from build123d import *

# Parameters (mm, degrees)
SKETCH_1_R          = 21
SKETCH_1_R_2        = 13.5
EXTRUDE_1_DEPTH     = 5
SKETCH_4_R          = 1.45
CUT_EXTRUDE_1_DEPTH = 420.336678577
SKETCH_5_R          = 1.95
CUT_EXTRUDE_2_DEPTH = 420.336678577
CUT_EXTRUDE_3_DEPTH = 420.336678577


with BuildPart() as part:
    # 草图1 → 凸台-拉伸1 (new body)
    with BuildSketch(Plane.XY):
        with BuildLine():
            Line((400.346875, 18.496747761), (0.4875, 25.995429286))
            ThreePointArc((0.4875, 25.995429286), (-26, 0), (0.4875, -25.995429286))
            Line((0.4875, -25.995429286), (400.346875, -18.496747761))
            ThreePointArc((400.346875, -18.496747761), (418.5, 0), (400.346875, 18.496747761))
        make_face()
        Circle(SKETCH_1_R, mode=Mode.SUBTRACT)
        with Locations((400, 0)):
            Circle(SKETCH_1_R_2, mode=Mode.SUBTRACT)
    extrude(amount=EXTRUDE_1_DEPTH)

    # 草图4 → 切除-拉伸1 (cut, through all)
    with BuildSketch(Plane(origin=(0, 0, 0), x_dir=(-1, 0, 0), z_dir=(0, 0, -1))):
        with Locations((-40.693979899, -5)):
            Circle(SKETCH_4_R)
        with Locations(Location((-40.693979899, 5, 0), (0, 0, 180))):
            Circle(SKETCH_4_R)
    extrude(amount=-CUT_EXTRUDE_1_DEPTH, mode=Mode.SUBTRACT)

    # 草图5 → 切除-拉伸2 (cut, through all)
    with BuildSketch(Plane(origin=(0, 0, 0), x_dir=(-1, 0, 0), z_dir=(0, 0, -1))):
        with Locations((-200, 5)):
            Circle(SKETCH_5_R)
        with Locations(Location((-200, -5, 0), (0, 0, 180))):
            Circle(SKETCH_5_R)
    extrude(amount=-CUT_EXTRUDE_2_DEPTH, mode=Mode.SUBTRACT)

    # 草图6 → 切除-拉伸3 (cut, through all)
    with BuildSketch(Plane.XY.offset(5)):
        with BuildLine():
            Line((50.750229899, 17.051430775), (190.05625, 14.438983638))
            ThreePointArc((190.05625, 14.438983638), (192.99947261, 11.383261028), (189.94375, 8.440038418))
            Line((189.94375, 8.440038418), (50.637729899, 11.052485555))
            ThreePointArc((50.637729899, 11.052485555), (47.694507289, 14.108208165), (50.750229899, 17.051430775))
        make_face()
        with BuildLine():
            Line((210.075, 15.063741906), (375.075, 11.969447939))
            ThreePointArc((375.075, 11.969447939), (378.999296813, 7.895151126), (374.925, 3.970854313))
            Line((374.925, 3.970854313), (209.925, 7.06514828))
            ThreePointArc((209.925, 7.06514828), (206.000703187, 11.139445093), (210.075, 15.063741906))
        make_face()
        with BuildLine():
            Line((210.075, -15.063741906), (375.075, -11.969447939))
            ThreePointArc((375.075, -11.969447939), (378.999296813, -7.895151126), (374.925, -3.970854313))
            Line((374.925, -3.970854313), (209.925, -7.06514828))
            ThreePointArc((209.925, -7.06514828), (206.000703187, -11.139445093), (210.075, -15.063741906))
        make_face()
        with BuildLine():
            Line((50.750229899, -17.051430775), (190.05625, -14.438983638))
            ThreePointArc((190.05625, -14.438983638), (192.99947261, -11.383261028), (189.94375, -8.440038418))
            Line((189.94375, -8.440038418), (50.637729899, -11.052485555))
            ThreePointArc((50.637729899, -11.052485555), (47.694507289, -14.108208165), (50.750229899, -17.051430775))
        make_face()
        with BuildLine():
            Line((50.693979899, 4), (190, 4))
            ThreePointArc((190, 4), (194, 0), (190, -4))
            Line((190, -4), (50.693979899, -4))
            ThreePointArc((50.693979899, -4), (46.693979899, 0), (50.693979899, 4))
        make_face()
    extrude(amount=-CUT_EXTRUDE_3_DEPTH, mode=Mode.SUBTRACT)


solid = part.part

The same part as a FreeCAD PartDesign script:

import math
import FreeCAD as App
import Part
import Sketcher

doc = App.newDocument("Part")
body = doc.addObject("PartDesign::Body", "Body")

# Sketch on XY plane
sketch1 = body.newObject("Sketcher::SketchObject", "Sketch")
sketch1.AttachmentSupport = (doc.getObject("XY_Plane"), [""])
sketch1.MapMode = "FlatFace"
sketch1.addGeometry(Part.LineSegment(App.Vector(400, 18, 0), App.Vector(0, 26, 0)), False)
sketch1.addGeometry(Part.ArcOfCircle(Part.Circle(App.Vector(0, 0, 0), App.Vector(0, 0, 1), 26), math.radians(89), math.radians(271)), False)
sketch1.addGeometry(Part.LineSegment(App.Vector(0, -26, 0), App.Vector(400, -18, 0)), False)
sketch1.addGeometry(Part.ArcOfCircle(Part.Circle(App.Vector(400, 0, 0), App.Vector(0, 0, 1), 18), math.radians(-89), math.radians(89)), False)
sketch1.addGeometry(Part.Circle(App.Vector(0, 0, 0), App.Vector(0, 0, 1), 21), False)
sketch1.addGeometry(Part.Circle(App.Vector(400, 0, 0), App.Vector(0, 0, 1), 14), False)
sketch1.addConstraint(Sketcher.Constraint("Tangent", 0, 2, 1, 1))
sketch1.addConstraint(Sketcher.Constraint("Tangent", 1, 2, 2, 1))
sketch1.addConstraint(Sketcher.Constraint("Tangent", 2, 2, 3, 1))
sketch1.addConstraint(Sketcher.Constraint("Tangent", 3, 2, 0, 1))
sketch1.addConstraint(Sketcher.Constraint("Coincident", 1, 3, -1, 1))
sketch1.addConstraint(Sketcher.Constraint("Coincident", 4, 3, -1, 1))
sketch1.addConstraint(Sketcher.Constraint("Coincident", 5, 3, 3, 3))
sketch1.addConstraint(Sketcher.Constraint("PointOnObject", 3, 3, -1))
sketch1.addConstraint(Sketcher.Constraint("Diameter", 4, 42.0))
sketch1.addConstraint(Sketcher.Constraint("Diameter", 5, 27.0))
sketch1.addConstraint(Sketcher.Constraint("Radius", 1, 26.0))
sketch1.addConstraint(Sketcher.Constraint("Radius", 3, 18.5))
sketch1.addConstraint(Sketcher.Constraint("DistanceX", -1, 1, 3, 3, 400.0))
pad1 = body.newObject("PartDesign::Pad", "Pad")
pad1.Profile = sketch1
pad1.Length = 5

# Sketch on XY plane
sketch2 = body.newObject("Sketcher::SketchObject", "Sketch001")
sketch2.AttachmentSupport = (doc.getObject("XY_Plane"), [""])
sketch2.MapMode = "FlatFace"
sketch2.addGeometry(Part.Circle(App.Vector(40.7, -5, 0), App.Vector(0, 0, 1), 1.4), False)
sketch2.addGeometry(Part.Circle(App.Vector(40.7, 5, 0), App.Vector(0, 0, 1), 1.4), False)
sketch2.addConstraint(Sketcher.Constraint("Equal", 0, 1))
sketch2.addConstraint(Sketcher.Constraint("Symmetric", 0, 3, 1, 3, -1))
sketch2.addConstraint(Sketcher.Constraint("Diameter", 0, 2.9))
sketch2.addConstraint(Sketcher.Constraint("DistanceY", 0, 3, -1, 1, 5.0))
sketch2.addConstraint(Sketcher.Constraint("DistanceX", -1, 1, 0, 3, 40.69398))
pocket1 = body.newObject("PartDesign::Pocket", "Pocket")
pocket1.Profile = sketch2
pocket1.Type = "ThroughAll"
pocket1.Reversed = True

# Sketch on XY plane
sketch3 = body.newObject("Sketcher::SketchObject", "Sketch002")
sketch3.AttachmentSupport = (doc.getObject("XY_Plane"), [""])
sketch3.MapMode = "FlatFace"
sketch3.addGeometry(Part.Circle(App.Vector(200, 5, 0), App.Vector(0, 0, 1), 1.9), False)
sketch3.addGeometry(Part.Circle(App.Vector(200, -5, 0), App.Vector(0, 0, 1), 1.9), False)
sketch3.addConstraint(Sketcher.Constraint("Equal", 0, 1))
sketch3.addConstraint(Sketcher.Constraint("Symmetric", 0, 3, 1, 3, -1))
sketch3.addConstraint(Sketcher.Constraint("Diameter", 0, 3.9))
sketch3.addConstraint(Sketcher.Constraint("DistanceX", -1, 1, 0, 3, 200.0))
sketch3.addConstraint(Sketcher.Constraint("DistanceY", -1, 1, 0, 3, 5.0))
pocket2 = body.newObject("PartDesign::Pocket", "Pocket001")
pocket2.Profile = sketch3
pocket2.Type = "ThroughAll"
pocket2.Reversed = True

# Sketch on XY plane
sketch4 = body.newObject("Sketcher::SketchObject", "Sketch003")
sketch4.AttachmentSupport = (doc.getObject("XY_Plane"), [""])
sketch4.MapMode = "FlatFace"
sketch4.AttachmentOffset = App.Placement(App.Vector(0, 0, 5), App.Rotation())
sketch4.addGeometry(Part.LineSegment(App.Vector(190.1, 14.4, 0), App.Vector(50.8, 17.1, 0)), False)
sketch4.addGeometry(Part.ArcOfCircle(Part.Circle(App.Vector(50.7, 14.1, 0), App.Vector(0, 0, 1), 3), math.radians(89), math.radians(269)), False)
sketch4.addGeometry(Part.LineSegment(App.Vector(50.6, 11.1, 0), App.Vector(189.9, 8.4, 0)), False)
sketch4.addGeometry(Part.ArcOfCircle(Part.Circle(App.Vector(190, 11.4, 0), App.Vector(0, 0, 1), 3), math.radians(-91), math.radians(89)), False)
sketch4.addGeometry(Part.LineSegment(App.Vector(375.1, 12, 0), App.Vector(210.1, 15.1, 0)), False)
sketch4.addGeometry(Part.ArcOfCircle(Part.Circle(App.Vector(210, 11.1, 0), App.Vector(0, 0, 1), 4), math.radians(89), math.radians(269)), False)
sketch4.addGeometry(Part.LineSegment(App.Vector(209.9, 7.1, 0), App.Vector(374.9, 4, 0)), False)
sketch4.addGeometry(Part.ArcOfCircle(Part.Circle(App.Vector(375, 8, 0), App.Vector(0, 0, 1), 4), math.radians(-91), math.radians(89)), False)
sketch4.addGeometry(Part.LineSegment(App.Vector(210.1, -15.1, 0), App.Vector(375.1, -12, 0)), False)
sketch4.addGeometry(Part.ArcOfCircle(Part.Circle(App.Vector(375, -8, 0), App.Vector(0, 0, 1), 4), math.radians(-89), math.radians(91)), False)
sketch4.addGeometry(Part.LineSegment(App.Vector(374.9, -4, 0), App.Vector(209.9, -7.1, 0)), False)
sketch4.addGeometry(Part.ArcOfCircle(Part.Circle(App.Vector(210, -11.1, 0), App.Vector(0, 0, 1), 4), math.radians(91), math.radians(271)), False)
sketch4.addGeometry(Part.LineSegment(App.Vector(50.8, -17.1, 0), App.Vector(190.1, -14.4, 0)), False)
sketch4.addGeometry(Part.ArcOfCircle(Part.Circle(App.Vector(190, -11.4, 0), App.Vector(0, 0, 1), 3), math.radians(-89), math.radians(91)), False)
sketch4.addGeometry(Part.LineSegment(App.Vector(189.9, -8.4, 0), App.Vector(50.6, -11.1, 0)), False)
sketch4.addGeometry(Part.ArcOfCircle(Part.Circle(App.Vector(50.7, -14.1, 0), App.Vector(0, 0, 1), 3), math.radians(91), math.radians(271)), False)
sketch4.addGeometry(Part.LineSegment(App.Vector(190, 4, 0), App.Vector(50.7, 4, 0)), False)
sketch4.addGeometry(Part.ArcOfCircle(Part.Circle(App.Vector(50.7, 0, 0), App.Vector(0, 0, 1), 4), math.radians(90), math.radians(270)), False)
sketch4.addGeometry(Part.LineSegment(App.Vector(50.7, -4, 0), App.Vector(190, -4, 0)), False)
sketch4.addGeometry(Part.ArcOfCircle(Part.Circle(App.Vector(190, 0, 0), App.Vector(0, 0, 1), 4), math.radians(-90), math.radians(90)), False)
sketch4.addConstraint(Sketcher.Constraint("Tangent", 0, 2, 1, 1))
sketch4.addConstraint(Sketcher.Constraint("Tangent", 1, 2, 2, 1))
sketch4.addConstraint(Sketcher.Constraint("Tangent", 2, 2, 3, 1))
sketch4.addConstraint(Sketcher.Constraint("Tangent", 3, 2, 0, 1))
sketch4.addConstraint(Sketcher.Constraint("Tangent", 4, 2, 5, 1))
sketch4.addConstraint(Sketcher.Constraint("Tangent", 5, 2, 6, 1))
sketch4.addConstraint(Sketcher.Constraint("Tangent", 6, 2, 7, 1))
sketch4.addConstraint(Sketcher.Constraint("Tangent", 7, 2, 4, 1))
sketch4.addConstraint(Sketcher.Constraint("Tangent", 8, 2, 9, 1))
sketch4.addConstraint(Sketcher.Constraint("Tangent", 9, 2, 10, 1))
sketch4.addConstraint(Sketcher.Constraint("Tangent", 10, 2, 11, 1))
sketch4.addConstraint(Sketcher.Constraint("Tangent", 11, 2, 8, 1))
sketch4.addConstraint(Sketcher.Constraint("Tangent", 12, 2, 13, 1))
sketch4.addConstraint(Sketcher.Constraint("Tangent", 13, 2, 14, 1))
sketch4.addConstraint(Sketcher.Constraint("Tangent", 14, 2, 15, 1))
sketch4.addConstraint(Sketcher.Constraint("Tangent", 15, 2, 12, 1))
sketch4.addConstraint(Sketcher.Constraint("Tangent", 16, 2, 17, 1))
sketch4.addConstraint(Sketcher.Constraint("Tangent", 17, 2, 18, 1))
sketch4.addConstraint(Sketcher.Constraint("Tangent", 18, 2, 19, 1))
sketch4.addConstraint(Sketcher.Constraint("Tangent", 19, 2, 16, 1))
sketch4.addConstraint(Sketcher.Constraint("Horizontal", 16))
sketch4.addConstraint(Sketcher.Constraint("Horizontal", 18))
sketch4.addConstraint(Sketcher.Constraint("Equal", 1, 3))
sketch4.addConstraint(Sketcher.Constraint("Equal", 5, 7))
sketch4.addConstraint(Sketcher.Constraint("Equal", 7, 9))
sketch4.addConstraint(Sketcher.Constraint("Equal", 9, 11))
sketch4.addConstraint(Sketcher.Constraint("Equal", 3, 13))
sketch4.addConstraint(Sketcher.Constraint("Equal", 13, 15))
sketch4.addConstraint(Sketcher.Constraint("Equal", 11, 17))
sketch4.addConstraint(Sketcher.Constraint("Symmetric", 7, 3, 9, 3, -1))
sketch4.addConstraint(Sketcher.Constraint("Symmetric", 5, 3, 11, 3, -1))
sketch4.addConstraint(Sketcher.Constraint("Symmetric", 3, 3, 13, 3, -1))
sketch4.addConstraint(Sketcher.Constraint("Symmetric", 1, 3, 15, 3, -1))
sketch4.addConstraint(Sketcher.Constraint("PointOnObject", 17, 3, -1))
sketch4.addConstraint(Sketcher.Constraint("Parallel", 2, 4))
sketch4.addConstraint(Sketcher.Constraint("Vertical", 15, 3, 17, 3))
sketch4.addConstraint(Sketcher.Constraint("Vertical", 13, 3, 19, 3))
sketch4.addConstraint(Sketcher.Constraint("Radius", 1, 3.0))
sketch4.addConstraint(Sketcher.Constraint("Radius", 5, 4.0))
sketch4.addConstraint(Sketcher.Constraint("DistanceX", -1, 1, 3, 3, 190.0))
sketch4.addConstraint(Sketcher.Constraint("DistanceX", -1, 1, 5, 3, 210.0))
sketch4.addConstraint(Sketcher.Constraint("DistanceX", -1, 1, 7, 3, 375.0))
sketch4.addConstraint(Sketcher.Constraint("DistanceX", 5, 2, 4, 2, 0.15))
sketch4.addConstraint(Sketcher.Constraint("DistanceX", 16, 2, 16, 1, 139.30602))
sketch4.addConstraint(Sketcher.Constraint("DistanceY", 9, 3, 7, 2, 19.939599))
sketch4.addConstraint(Sketcher.Constraint("DistanceY", -1, 1, 1, 3, 14.051958))
pocket3 = body.newObject("PartDesign::Pocket", "Pocket002")
pocket3.Profile = sketch4
pocket3.Type = "ThroughAll"

doc.recompute()
